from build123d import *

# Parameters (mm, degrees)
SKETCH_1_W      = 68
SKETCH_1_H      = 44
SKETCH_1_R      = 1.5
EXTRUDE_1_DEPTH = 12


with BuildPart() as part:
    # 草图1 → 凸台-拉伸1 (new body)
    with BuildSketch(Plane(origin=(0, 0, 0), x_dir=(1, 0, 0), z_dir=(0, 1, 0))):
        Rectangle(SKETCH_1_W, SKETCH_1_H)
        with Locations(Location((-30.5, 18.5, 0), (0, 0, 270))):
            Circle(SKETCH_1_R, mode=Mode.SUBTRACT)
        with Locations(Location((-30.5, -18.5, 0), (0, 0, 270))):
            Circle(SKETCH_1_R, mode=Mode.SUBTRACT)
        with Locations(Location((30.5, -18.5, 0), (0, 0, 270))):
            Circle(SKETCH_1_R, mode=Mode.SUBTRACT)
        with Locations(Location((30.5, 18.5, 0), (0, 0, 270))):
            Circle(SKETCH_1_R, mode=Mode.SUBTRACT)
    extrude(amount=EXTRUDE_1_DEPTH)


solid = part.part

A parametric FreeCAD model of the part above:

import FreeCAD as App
import Part
import Sketcher

V = App.Vector


def add_polygon(sketch, points):
    """Adds a closed chain of lines whose ends are joined by coincident constraints."""
    first, n = sketch.GeometryCount, len(points)
    for a, b in zip(points, points[1:] + points[:1]):
        sketch.addGeometry(Part.LineSegment(App.Vector(*a, 0), App.Vector(*b, 0)), False)
    for i in range(n):
        sketch.addConstraint(Sketcher.Constraint("Coincident", first + i, 2, first + (i + 1) % n, 1))

doc = App.newDocument("Part")
body = doc.addObject("PartDesign::Body", "Body")

sketch1 = body.newObject("Sketcher::SketchObject", "Sketch")
sketch1.AttachmentSupport = (doc.getObject("XZ_Plane"), [""])
sketch1.MapMode = "FlatFace"
add_polygon(sketch1, [(-34, -22), (-34, 22), (34, 22), (34, -22)])
sketch1.addGeometry(Part.Circle(V(-30.5, 18.5, 0), V(0, 0, 1), 1.5), False)
sketch1.addGeometry(Part.Circle(V(30.5, 18.5, 0), V(0, 0, 1), 1.5), False)
sketch1.addGeometry(Part.Circle(V(-30.5, -18.5, 0), V(0, 0, 1), 1.5), False)
sketch1.addGeometry(Part.Circle(V(30.5, -18.5, 0), V(0, 0, 1), 1.5), False)
sketch1.addConstraint(Sketcher.Constraint("Vertical", 0))
sketch1.addConstraint(Sketcher.Constraint("Horizontal", 1))
sketch1.addConstraint(Sketcher.Constraint("Vertical", 2))
sketch1.addConstraint(Sketcher.Constraint("Horizontal", 3))
sketch1.addConstraint(Sketcher.Constraint("Equal", 4, 5))
sketch1.addConstraint(Sketcher.Constraint("Equal", 5, 6))
sketch1.addConstraint(Sketcher.Constraint("Equal", 6, 7))
sketch1.addConstraint(Sketcher.Constraint("Symmetric", 5, 3, 6, 3, -1, 1))
sketch1.addConstraint(Sketcher.Constraint("Symmetric", 4, 3, 7, 3, -1, 1))
sketch1.addConstraint(Sketcher.Constraint("Symmetric", 0, 2, 2, 2, -1, 1))
sketch1.addConstraint(Sketcher.Constraint("Symmetric", 4, 3, 5, 3, -2))
sketch1.addConstraint(Sketcher.Constraint("Diameter", 4, 3.0))
sketch1.addConstraint(Sketcher.Constraint("DistanceX", 1, 1, 1, 2, 68.0))
sketch1.addConstraint(Sketcher.Constraint("DistanceY", 0, 1, 0, 2, 44.0))
sketch1.addConstraint(Sketcher.Constraint("DistanceX", 4, 3, 5, 3, 61.0))
sketch1.addConstraint(Sketcher.Constraint("DistanceY", 6, 3, 4, 3, 37.0))
pad1 = body.newObject("PartDesign::Pad", "Pad")
pad1.Profile = sketch1
pad1.Length = 12
pad1.Reversed = True

doc.recompute()
